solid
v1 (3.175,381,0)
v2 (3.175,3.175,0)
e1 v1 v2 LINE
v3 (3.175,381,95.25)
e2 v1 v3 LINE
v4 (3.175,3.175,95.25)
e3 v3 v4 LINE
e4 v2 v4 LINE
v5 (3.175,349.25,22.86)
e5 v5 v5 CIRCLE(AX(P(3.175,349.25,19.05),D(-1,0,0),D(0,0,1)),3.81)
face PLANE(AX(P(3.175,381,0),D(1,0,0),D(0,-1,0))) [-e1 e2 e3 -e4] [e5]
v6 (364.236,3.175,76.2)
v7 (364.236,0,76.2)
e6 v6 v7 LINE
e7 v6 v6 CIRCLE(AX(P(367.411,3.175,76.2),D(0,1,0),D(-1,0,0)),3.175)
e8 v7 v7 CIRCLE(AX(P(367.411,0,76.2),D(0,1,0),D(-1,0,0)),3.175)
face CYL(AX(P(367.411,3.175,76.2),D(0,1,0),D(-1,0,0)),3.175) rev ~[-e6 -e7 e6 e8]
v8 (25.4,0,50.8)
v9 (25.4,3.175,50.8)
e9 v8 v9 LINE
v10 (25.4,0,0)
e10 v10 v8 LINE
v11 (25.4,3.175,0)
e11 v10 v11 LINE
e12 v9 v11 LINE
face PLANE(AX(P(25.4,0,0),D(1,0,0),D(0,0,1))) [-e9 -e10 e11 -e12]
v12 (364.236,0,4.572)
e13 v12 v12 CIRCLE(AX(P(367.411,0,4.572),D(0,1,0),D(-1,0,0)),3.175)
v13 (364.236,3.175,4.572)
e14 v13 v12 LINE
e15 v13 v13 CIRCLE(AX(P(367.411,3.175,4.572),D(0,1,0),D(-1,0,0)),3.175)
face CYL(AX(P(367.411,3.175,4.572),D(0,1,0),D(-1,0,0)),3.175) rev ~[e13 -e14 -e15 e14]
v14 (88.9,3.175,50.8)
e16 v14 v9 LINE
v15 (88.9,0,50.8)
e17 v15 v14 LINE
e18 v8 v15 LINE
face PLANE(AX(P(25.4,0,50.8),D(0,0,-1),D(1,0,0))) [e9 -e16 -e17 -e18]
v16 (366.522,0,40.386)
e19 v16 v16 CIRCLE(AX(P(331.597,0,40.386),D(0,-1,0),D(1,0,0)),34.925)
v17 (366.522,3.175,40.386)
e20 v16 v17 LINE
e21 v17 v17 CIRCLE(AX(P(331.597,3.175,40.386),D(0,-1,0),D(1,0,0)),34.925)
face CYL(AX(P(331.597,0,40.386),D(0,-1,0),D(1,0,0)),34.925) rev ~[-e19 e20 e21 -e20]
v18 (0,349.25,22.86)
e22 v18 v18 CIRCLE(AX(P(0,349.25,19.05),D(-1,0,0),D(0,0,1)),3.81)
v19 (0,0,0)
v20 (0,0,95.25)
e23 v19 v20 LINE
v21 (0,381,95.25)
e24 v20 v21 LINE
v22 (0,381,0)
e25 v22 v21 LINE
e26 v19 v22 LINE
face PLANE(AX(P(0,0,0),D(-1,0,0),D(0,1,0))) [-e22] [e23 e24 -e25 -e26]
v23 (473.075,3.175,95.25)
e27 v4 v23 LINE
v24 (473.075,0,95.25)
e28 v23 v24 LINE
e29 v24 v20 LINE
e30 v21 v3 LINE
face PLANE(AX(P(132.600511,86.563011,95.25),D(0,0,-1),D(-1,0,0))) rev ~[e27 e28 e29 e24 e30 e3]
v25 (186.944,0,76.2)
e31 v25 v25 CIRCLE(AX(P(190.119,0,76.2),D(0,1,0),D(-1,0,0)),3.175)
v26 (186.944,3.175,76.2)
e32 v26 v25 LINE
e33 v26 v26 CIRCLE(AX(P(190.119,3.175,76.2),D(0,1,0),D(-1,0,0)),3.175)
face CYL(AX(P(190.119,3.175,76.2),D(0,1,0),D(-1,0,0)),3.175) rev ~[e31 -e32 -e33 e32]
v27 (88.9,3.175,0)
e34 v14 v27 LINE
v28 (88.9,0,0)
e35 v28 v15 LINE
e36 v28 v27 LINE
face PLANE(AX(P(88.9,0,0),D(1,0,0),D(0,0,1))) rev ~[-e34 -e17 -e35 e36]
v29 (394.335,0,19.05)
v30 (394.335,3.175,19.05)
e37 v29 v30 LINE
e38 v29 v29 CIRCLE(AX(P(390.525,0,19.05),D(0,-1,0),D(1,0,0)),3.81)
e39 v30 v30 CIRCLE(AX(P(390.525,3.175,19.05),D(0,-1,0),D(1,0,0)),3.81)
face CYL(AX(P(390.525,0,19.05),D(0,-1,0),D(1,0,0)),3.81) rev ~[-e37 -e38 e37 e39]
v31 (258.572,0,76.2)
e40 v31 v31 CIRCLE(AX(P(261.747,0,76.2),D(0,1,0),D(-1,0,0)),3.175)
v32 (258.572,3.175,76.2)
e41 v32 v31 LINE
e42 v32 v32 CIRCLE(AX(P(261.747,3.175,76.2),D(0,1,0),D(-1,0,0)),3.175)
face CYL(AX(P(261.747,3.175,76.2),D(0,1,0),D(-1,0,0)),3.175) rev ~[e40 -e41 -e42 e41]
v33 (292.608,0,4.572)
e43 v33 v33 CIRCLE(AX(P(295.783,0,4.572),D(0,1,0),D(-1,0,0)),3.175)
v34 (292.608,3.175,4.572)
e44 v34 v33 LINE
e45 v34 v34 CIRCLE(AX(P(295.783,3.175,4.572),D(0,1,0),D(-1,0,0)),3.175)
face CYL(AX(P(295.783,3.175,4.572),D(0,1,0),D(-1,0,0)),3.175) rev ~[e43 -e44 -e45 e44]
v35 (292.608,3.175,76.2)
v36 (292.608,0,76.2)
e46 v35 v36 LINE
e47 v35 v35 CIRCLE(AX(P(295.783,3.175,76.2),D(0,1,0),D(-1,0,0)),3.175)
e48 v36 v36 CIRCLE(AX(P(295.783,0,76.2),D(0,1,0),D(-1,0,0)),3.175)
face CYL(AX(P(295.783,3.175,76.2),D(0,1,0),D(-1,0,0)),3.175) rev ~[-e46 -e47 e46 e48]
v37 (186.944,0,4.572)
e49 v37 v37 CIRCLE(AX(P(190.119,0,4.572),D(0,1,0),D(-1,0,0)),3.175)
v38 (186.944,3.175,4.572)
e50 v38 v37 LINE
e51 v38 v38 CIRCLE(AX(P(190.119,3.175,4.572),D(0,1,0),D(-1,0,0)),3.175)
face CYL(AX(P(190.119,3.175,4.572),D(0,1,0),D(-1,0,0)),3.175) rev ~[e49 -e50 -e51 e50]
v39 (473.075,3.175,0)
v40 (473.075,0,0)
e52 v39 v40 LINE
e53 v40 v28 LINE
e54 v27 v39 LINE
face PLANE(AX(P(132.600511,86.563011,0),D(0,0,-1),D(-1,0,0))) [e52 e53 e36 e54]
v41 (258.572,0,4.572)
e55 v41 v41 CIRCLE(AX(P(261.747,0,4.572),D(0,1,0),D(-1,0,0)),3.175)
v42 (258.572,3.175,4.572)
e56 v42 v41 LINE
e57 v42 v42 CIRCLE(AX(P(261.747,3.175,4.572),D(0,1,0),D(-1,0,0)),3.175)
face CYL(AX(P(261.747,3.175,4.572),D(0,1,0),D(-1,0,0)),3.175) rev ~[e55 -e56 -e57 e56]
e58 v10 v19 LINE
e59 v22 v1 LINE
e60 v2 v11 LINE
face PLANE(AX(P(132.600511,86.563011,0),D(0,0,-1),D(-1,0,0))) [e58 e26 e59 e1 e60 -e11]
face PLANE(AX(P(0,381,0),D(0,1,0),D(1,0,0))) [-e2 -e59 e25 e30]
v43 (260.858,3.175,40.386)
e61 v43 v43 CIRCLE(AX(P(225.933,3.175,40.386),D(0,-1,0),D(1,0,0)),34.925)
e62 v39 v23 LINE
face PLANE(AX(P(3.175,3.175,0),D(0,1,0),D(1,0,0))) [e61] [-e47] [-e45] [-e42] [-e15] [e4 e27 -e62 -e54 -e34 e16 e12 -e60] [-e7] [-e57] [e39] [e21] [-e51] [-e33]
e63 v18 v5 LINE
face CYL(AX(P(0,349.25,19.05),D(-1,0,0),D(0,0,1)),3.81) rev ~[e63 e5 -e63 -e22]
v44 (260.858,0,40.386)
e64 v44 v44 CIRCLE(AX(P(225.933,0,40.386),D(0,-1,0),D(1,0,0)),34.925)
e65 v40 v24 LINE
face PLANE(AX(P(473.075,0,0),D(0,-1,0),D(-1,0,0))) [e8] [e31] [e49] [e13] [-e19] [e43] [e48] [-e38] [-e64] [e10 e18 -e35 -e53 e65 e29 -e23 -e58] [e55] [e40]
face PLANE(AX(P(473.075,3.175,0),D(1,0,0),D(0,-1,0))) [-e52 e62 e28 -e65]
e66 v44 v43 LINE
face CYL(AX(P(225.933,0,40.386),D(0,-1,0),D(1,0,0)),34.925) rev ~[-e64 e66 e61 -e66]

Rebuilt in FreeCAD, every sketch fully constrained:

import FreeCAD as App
import Part
import Sketcher

V = App.Vector
Q = App.Units.Quantity

doc = App.newDocument("Part")
body = doc.addObject("PartDesign::Body", "Body")

# Sketch on XY plane
sketch1 = body.newObject("Sketcher::SketchObject", "Sketch")
sketch1.AttachmentSupport = (doc.getObject("XY_Plane"), [""])
sketch1.MapMode = "FlatFace"
sketch1.addGeometry([
    Part.LineSegment(V(0, 381, 0), V(0, 0, 0)),  # 0
    Part.LineSegment(V(0, 0, 0), V(473.1, 0, 0)),  # 1
    Part.LineSegment(V(473.1, 0, 0), V(473.1, 3.2, 0)),  # 2
    Part.LineSegment(V(473.1, 3.2, 0), V(3.2, 3.2, 0)),  # 3
    Part.LineSegment(V(3.2, 3.2, 0), V(3.2, 381, 0)),  # 4
    Part.LineSegment(V(3.2, 381, 0), V(0, 381, 0)),  # 5
], False)
sketch1.addConstraint([
    Sketcher.Constraint("Coincident", 0, 2, 1, 1),
    Sketcher.Constraint("Coincident", 1, 2, 2, 1),
    Sketcher.Constraint("Coincident", 2, 2, 3, 1),
    Sketcher.Constraint("Coincident", 3, 2, 4, 1),
    Sketcher.Constraint("Coincident", 4, 2, 5, 1),
    Sketcher.Constraint("Coincident", 5, 2, 0, 1),
    Sketcher.Constraint("Vertical", 0),
    Sketcher.Constraint("Horizontal", 1),
    Sketcher.Constraint("Vertical", 2),
    Sketcher.Constraint("Horizontal", 3),
    Sketcher.Constraint("Vertical", 4),
    Sketcher.Constraint("Horizontal", 5),
    Sketcher.Constraint("Coincident", 0, 2, -1, 1),
    Sketcher.Constraint("Equal", 5, 2),
    Sketcher.Constraint("DistanceY", 0, 2, 0, 1, Q("15 in")),
    Sketcher.Constraint("DistanceX", 3, 2, 3, 1, Q("18.5 in")),
    Sketcher.Constraint("DistanceX", 1, 1, 1, 2, Q("18.625 in")),
])
pad1 = body.newObject("PartDesign::Pad", "Pad")
pad1.Profile = sketch1
pad1.Length = Q("3.75 in")

# Sketch on XZ plane
sketch2 = body.newObject("Sketcher::SketchObject", "Sketch001")
sketch2.AttachmentSupport = (doc.getObject("XZ_Plane"), [""])
sketch2.MapMode = "FlatFace"
sketch2.AttachmentOffset = App.Placement(V(0, 0, -0.125 * 25.4), App.Rotation())
sketch2.addGeometry([
    Part.Circle(V(190.1, 4.6, 0), V(0, 0, 1), 3.2),  # 0
    Part.Circle(V(190.1, 76.2, 0), V(0, 0, 1), 3.2),  # 1
    Part.Circle(V(261.7, 4.6, 0), V(0, 0, 1), 3.2),  # 2
    Part.Circle(V(261.7, 76.2, 0), V(0, 0, 1), 3.2),  # 3
    Part.Circle(V(295.8, 76.2, 0), V(0, 0, 1), 3.2),  # 4
    Part.Circle(V(295.8, 4.6, 0), V(0, 0, 1), 3.2),  # 5
    Part.Circle(V(367.4, 76.2, 0), V(0, 0, 1), 3.2),  # 6
    Part.Circle(V(367.4, 4.6, 0), V(0, 0, 1), 3.2),  # 7
], False)
sketch2.addConstraint([
    Sketcher.Constraint("Equal", 0, 1),
    Sketcher.Constraint("Equal", 1, 2),
    Sketcher.Constraint("Equal", 2, 3),
    Sketcher.Constraint("Equal", 3, 4),
    Sketcher.Constraint("Equal", 4, 5),
    Sketcher.Constraint("Equal", 5, 6),
    Sketcher.Constraint("Equal", 6, 7),
    Sketcher.Constraint("Horizontal", 0, 3, 2, 3),
    Sketcher.Constraint("Horizontal", 1, 3, 3, 3),
    Sketcher.Constraint("Horizontal", 3, 3, 4, 3),
    Sketcher.Constraint("Horizontal", 2, 3, 5, 3),
    Sketcher.Constraint("Horizontal", 4, 3, 6, 3),
    Sketcher.Constraint("Horizontal", 5, 3, 7, 3),
    Sketcher.Constraint("Vertical", 0, 3, 1, 3),
    Sketcher.Constraint("Vertical", 2, 3, 3, 3),
    Sketcher.Constraint("Vertical", 4, 3, 5, 3),
    Sketcher.Constraint("Vertical", 6, 3, 7, 3),
    Sketcher.Constraint("Diameter", 0, Q("0.25 in")),
    Sketcher.Constraint("DistanceY", -1, 1, 1, 3, Q("3 in")),
    Sketcher.Constraint("DistanceY", -1, 1, 0, 3, Q("0.18 in")),
    Sketcher.Constraint("DistanceX", 0, 3, 2, 3, Q("2.82 in")),
    Sketcher.Constraint("DistanceX", 3, 3, 4, 3, Q("1.34 in")),
    Sketcher.Constraint("DistanceX", 4, 3, 6, 3, Q("2.82 in")),
    Sketcher.Constraint("DistanceX", -1, 1, 0, 3, Q("7.485 in")),
])
pocket1 = body.newObject("PartDesign::Pocket", "Pocket")
pocket1.Profile = sketch2
pocket1.Length = Q("6 in")
pocket1.Reversed = True

# Sketch on XZ plane
sketch3 = body.newObject("Sketcher::SketchObject", "Sketch002")
sketch3.AttachmentSupport = (doc.getObject("XZ_Plane"), [""])
sketch3.MapMode = "FlatFace"
sketch3.addGeometry([
    Part.Circle(V(225.9, 40.4, 0), V(0, 0, 1), 34.9),
    Part.Circle(V(331.6, 40.4, 0), V(0, 0, 1), 34.9),
    Part.Circle(V(390.5, 19.1, 0), V(0, 0, 1), 3.8),
], False)
sketch3.addConstraint([
    Sketcher.Constraint("Equal", 0, 1),
    Sketcher.Constraint("Horizontal", 0, 3, 1, 3),
    Sketcher.Constraint("Diameter", 2, Q("0.3 in")),
    Sketcher.Constraint("Diameter", 0, Q("2.75 in")),
    Sketcher.Constraint("DistanceY", -1, 1, 0, 3, Q("1.59 in")),
    Sketcher.Constraint("DistanceY", -1, 1, 2, 3, Q("0.75 in")),
    Sketcher.Constraint("DistanceX", 0, 3, 1, 3, Q("4.16 in")),
    Sketcher.Constraint("DistanceX", 1, 3, 2, 3, Q("2.32 in")),
    Sketcher.Constraint("DistanceX", -1, 1, 0, 3, Q("8.895 in")),
])
pocket2 = body.newObject("PartDesign::Pocket", "Pocket001")
pocket2.Profile = sketch3
pocket2.Length = Q("15 in")

# Sketch on YZ plane
sketch4 = body.newObject("Sketcher::SketchObject", "Sketch003")
sketch4.AttachmentSupport = (doc.getObject("YZ_Plane"), [""])
sketch4.MapMode = "FlatFace"
sketch4.addGeometry(Part.Circle(V(349.2, 19.1, 0), V(0, 0, 1), 3.8), False)
sketch4.addConstraint([
    Sketcher.Constraint("Diameter", 0, Q("0.3 in")),
    Sketcher.Constraint("DistanceX", -1, 1, 0, 3, Q("13.75 in")),
    Sketcher.Constraint("DistanceY", -1, 1, 0, 3, Q("0.75 in")),
])
pocket3 = body.newObject("PartDesign::Pocket", "Pocket002")
pocket3.Profile = sketch4
pocket3.Length = Q("0.5 in")
pocket3.Reversed = True

# Sketch on XZ plane
sketch5 = body.newObject("Sketcher::SketchObject", "Sketch004")
sketch5.AttachmentSupport = (doc.getObject("XZ_Plane"), [""])
sketch5.MapMode = "FlatFace"
sketch5.addGeometry([
    Part.LineSegment(V(25, 51, 0), V(25, 0, 0)),
    Part.LineSegment(V(25, 0, 0), V(89, 0, 0)),
    Part.LineSegment(V(89, 0, 0), V(89, 51, 0)),
    Part.LineSegment(V(89, 51, 0), V(25, 51, 0)),
], False)
sketch5.addConstraint([
    Sketcher.Constraint("Coincident", 0, 2, 1, 1),
    Sketcher.Constraint("Coincident", 1, 2, 2, 1),
    Sketcher.Constraint("Coincident", 2, 2, 3, 1),
    Sketcher.Constraint("Coincident", 3, 2, 0, 1),
    Sketcher.Constraint("Vertical", 0),
    Sketcher.Constraint("Horizontal", 1),
    Sketcher.Constraint("Vertical", 2),
    Sketcher.Constraint("Horizontal", 3),
    Sketcher.Constraint("PointOnObject", 0, 2, -1),
    Sketcher.Constraint("DistanceY", 0, 2, 0, 1, Q("2 in")),
    Sketcher.Constraint("DistanceX", 1, 1, 1, 2, Q("2.5 in")),
    Sketcher.Constraint("DistanceX", -1, 1, 0, 2, Q("1 in")),
])
pocket4 = body.newObject("PartDesign::Pocket", "Pocket003")
pocket4.Profile = sketch5
pocket4.Length = Q("3.02 in")

doc.recompute()
